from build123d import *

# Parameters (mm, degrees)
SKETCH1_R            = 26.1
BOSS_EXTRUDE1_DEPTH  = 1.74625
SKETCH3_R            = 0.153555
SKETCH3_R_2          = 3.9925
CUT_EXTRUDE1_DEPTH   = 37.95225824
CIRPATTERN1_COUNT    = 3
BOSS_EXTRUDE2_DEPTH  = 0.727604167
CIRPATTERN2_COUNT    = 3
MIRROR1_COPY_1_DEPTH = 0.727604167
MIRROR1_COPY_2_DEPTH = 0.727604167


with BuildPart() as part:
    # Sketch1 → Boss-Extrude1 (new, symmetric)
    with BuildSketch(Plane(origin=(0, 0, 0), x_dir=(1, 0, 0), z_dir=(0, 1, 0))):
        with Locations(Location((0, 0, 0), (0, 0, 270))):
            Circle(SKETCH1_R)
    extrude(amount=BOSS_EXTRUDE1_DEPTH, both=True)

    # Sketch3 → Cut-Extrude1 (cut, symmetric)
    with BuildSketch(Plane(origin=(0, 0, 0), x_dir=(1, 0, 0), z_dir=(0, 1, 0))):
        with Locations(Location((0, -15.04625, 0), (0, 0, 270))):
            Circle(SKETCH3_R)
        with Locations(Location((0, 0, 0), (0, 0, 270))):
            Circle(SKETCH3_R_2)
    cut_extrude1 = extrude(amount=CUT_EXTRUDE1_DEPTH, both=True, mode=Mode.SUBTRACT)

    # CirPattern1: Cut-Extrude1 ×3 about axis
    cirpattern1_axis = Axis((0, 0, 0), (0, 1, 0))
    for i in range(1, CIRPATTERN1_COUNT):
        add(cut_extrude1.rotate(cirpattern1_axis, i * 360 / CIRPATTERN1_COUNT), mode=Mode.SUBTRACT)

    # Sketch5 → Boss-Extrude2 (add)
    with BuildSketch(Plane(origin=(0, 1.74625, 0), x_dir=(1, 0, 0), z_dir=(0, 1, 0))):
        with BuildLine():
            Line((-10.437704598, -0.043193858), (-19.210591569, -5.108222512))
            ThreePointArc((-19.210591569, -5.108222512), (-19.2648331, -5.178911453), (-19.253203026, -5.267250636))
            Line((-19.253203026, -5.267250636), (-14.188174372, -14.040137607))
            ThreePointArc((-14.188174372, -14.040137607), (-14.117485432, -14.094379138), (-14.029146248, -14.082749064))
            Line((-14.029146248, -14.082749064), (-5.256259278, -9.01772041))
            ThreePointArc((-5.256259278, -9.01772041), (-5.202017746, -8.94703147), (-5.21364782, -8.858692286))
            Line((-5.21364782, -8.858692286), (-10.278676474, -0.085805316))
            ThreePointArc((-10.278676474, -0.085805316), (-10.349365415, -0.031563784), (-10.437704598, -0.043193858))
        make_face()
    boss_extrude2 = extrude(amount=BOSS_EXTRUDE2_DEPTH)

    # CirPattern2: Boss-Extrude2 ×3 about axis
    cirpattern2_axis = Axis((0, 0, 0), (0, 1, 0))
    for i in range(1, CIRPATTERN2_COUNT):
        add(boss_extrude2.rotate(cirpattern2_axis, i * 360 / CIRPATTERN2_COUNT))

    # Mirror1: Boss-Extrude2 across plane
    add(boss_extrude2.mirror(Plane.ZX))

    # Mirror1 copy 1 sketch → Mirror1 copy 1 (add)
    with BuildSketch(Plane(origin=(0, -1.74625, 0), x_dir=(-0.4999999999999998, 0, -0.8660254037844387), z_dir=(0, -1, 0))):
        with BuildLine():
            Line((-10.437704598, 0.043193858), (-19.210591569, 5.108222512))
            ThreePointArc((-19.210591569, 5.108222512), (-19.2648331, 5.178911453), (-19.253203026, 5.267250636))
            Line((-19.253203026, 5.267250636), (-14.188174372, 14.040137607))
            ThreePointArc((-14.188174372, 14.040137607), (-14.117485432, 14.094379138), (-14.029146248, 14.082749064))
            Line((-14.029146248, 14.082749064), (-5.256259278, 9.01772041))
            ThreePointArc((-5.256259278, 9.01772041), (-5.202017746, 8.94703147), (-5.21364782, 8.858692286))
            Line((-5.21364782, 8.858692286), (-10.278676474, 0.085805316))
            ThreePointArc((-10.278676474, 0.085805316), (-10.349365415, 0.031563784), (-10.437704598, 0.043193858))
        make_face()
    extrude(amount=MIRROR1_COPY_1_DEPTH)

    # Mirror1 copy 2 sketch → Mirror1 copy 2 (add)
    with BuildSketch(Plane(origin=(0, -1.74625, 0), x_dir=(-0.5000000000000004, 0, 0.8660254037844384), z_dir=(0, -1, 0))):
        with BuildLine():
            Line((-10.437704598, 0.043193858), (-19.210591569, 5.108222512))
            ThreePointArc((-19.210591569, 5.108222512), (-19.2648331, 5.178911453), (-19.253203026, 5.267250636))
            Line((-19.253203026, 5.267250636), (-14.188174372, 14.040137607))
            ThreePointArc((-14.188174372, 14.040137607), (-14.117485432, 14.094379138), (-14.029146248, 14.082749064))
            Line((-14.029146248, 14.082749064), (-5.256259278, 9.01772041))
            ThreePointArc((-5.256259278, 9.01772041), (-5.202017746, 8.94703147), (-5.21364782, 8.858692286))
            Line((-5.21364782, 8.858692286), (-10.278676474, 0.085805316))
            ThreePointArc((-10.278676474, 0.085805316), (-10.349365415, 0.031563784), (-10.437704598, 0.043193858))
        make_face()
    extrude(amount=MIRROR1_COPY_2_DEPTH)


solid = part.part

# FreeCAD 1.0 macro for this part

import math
import FreeCAD as App
import Part
import Sketcher
from FreeCAD import Vector
Q = App.Units.Quantity

doc = App.newDocument("Part")
body = doc.addObject("PartDesign::Body", "Body")

# Sketch on XZ plane
sketch1 = body.newObject("Sketcher::SketchObject", "Sketch")
sketch1.AttachmentSupport = (doc.getObject("XZ_Plane"), [""])
sketch1.MapMode = "FlatFace"
sketch1.addGeometry(Part.Circle(Vector(0, 0, 0), Vector(0, 0, 1), 26), False)
sketch1.addConstraint(Sketcher.Constraint("Coincident", 0, 3, -1, 1))
sketch1.addConstraint(Sketcher.Constraint("Diameter", 0, 52.2))
pad1 = body.newObject("PartDesign::Pad", "Pad")
pad1.Profile = sketch1
pad1.Length = 3.4925
pad1.Midplane = True

# Sketch on XZ plane
sketch2 = body.newObject("Sketcher::SketchObject", "Sketch001")
sketch2.AttachmentSupport = (doc.getObject("XZ_Plane"), [""])
sketch2.MapMode = "FlatFace"
sketch2.addGeometry(Part.Circle(Vector(0, 15.05, 0), Vector(0, 0, 1), 0.15), False)
sketch2.addGeometry(Part.Circle(Vector(0, 0, 0), Vector(0, 0, 1), 3.99), False)
sketch2.addConstraint(Sketcher.Constraint("Coincident", 1, 3, -1, 1))
sketch2.addConstraint(Sketcher.Constraint("PointOnObject", 0, 3, -2))
sketch2.addConstraint(Sketcher.Constraint("Diameter", 1, 7.985))
sketch2.addConstraint(Sketcher.Constraint("Diameter", 0, 0.30711))
sketch2.addConstraint(Sketcher.Constraint("DistanceY", -1, 1, 0, 3, 15.04625))
pocket1 = body.newObject("PartDesign::Pocket", "Pocket")
pocket1.Profile = sketch2
pocket1.Length = 75.904516
pocket1.Midplane = True
doc.recompute()

polarpattern = body.newObject("PartDesign::PolarPattern", "PolarPattern")
polarpattern.Originals = [pocket1]
polarpattern.Axis = (doc.getObject("Y_Axis"), [""])
polarpattern.Angle = 360
polarpattern.Occurrences = 3
body.Tip = polarpattern

# Sketch on XZ plane
sketch3 = body.newObject("Sketcher::SketchObject", "Sketch002")
sketch3.AttachmentSupport = (doc.getObject("XZ_Plane"), [""])
sketch3.MapMode = "FlatFace"
sketch3.AttachmentOffset = App.Placement(Vector(0, 0, -1.74625), App.Rotation())
sketch3.addGeometry(Part.LineSegment(Vector(-10.44, 0.04, 0), Vector(-19.21, 5.11, 0)), False)
sketch3.addGeometry(Part.ArcOfCircle(Part.Circle(Vector(-19.15, 5.21, 0), Vector(0, 0, 1), 0.12), math.radians(150), math.radians(240)), False)
sketch3.addGeometry(Part.LineSegment(Vector(-19.25, 5.27, 0), Vector(-14.19, 14.04, 0)), False)
sketch3.addGeometry(Part.ArcOfCircle(Part.Circle(Vector(-14.09, 13.98, 0), Vector(0, 0, 1), 0.12), math.radians(60), math.radians(150)), False)
sketch3.addGeometry(Part.LineSegment(Vector(-14.03, 14.08, 0), Vector(-5.26, 9.02, 0)), False)
sketch3.addGeometry(Part.ArcOfCircle(Part.Circle(Vector(-5.31, 8.92, 0), Vector(0, 0, 1), 0.12), math.radians(-30), math.radians(60)), False)
sketch3.addGeometry(Part.LineSegment(Vector(-5.21, 8.86, 0), Vector(-10.28, 0.09, 0)), False)
sketch3.addGeometry(Part.ArcOfCircle(Part.Circle(Vector(-10.38, 0.14, 0), Vector(0, 0, 1), 0.12), math.radians(-120), math.radians(-30)), False)
sketch3.addConstraint(Sketcher.Constraint("Tangent", 0, 2, 1, 2))
sketch3.addConstraint(Sketcher.Constraint("Tangent", 1, 1, 2, 1))
sketch3.addConstraint(Sketcher.Constraint("Tangent", 2, 2, 3, 2))
sketch3.addConstraint(Sketcher.Constraint("Tangent", 3, 1, 4, 1))
sketch3.addConstraint(Sketcher.Constraint("Tangent", 4, 2, 5, 2))
sketch3.addConstraint(Sketcher.Constraint("Tangent", 5, 1, 6, 1))
sketch3.addConstraint(Sketcher.Constraint("Tangent", 6, 2, 7, 2))
sketch3.addConstraint(Sketcher.Constraint("Tangent", 7, 1, 0, 1))
sketch3.addConstraint(Sketcher.Constraint("Equal", 1, 3))
sketch3.addConstraint(Sketcher.Constraint("Equal", 3, 5))
sketch3.addConstraint(Sketcher.Constraint("Equal", 5, 7))
sketch3.addConstraint(Sketcher.Constraint("Perpendicular", 0, 2))
sketch3.addConstraint(Sketcher.Constraint("Perpendicular", 2, 4))
sketch3.addConstraint(Sketcher.Constraint("Perpendicular", 4, 6))
sketch3.addConstraint(Sketcher.Constraint("Equal", 0, 2))
sketch3.addConstraint(Sketcher.Constraint("Angle", 0, Q("150 deg")))
sketch3.addConstraint(Sketcher.Constraint("Radius", 1, 0.116417))
sketch3.addConstraint(Sketcher.Constraint("DistanceY", -1, 1, 5, 3, 8.916901))
sketch3.addConstraint(Sketcher.Constraint("DistanceY", 1, 1, 3, 1, 8.815498))
sketch3.addConstraint(Sketcher.Constraint("DistanceX", 0, 2, -1, 1, 19.210592))
pad2 = body.newObject("PartDesign::Pad", "Pad001")
pad2.Profile = sketch3
pad2.Length = 0.727604
pad2.Reversed = True
doc.recompute()

polarpattern2 = body.newObject("PartDesign::PolarPattern", "PolarPattern001")
polarpattern2.Originals = [pad2]
polarpattern2.Axis = (doc.getObject("Y_Axis"), [""])
polarpattern2.Angle = 360
polarpattern2.Occurrences = 3
body.Tip = polarpattern2
doc.recompute()

mirrored = body.newObject("PartDesign::Mirrored", "Mirrored")
mirrored.Originals = [pad2]
mirrored.MirrorPlane = (doc.getObject("XZ_Plane"), [""])
body.Tip = mirrored

# Sketch on XZ plane
sketch4 = body.newObject("Sketcher::SketchObject", "Sketch003")
sketch4.AttachmentSupport = (doc.getObject("XZ_Plane"), [""])
sketch4.MapMode = "FlatFace"
sketch4.AttachmentOffset = App.Placement(Vector(0, 0, 1.74625), App.Rotation())
sketch4.addGeometry(Part.LineSegment(Vector(14.03, 14.08, 0), Vector(5.26, 9.02, 0)), False)
sketch4.addGeometry(Part.ArcOfCircle(Part.Circle(Vector(5.31, 8.92, 0), Vector(0, 0, 1), 0.12), math.radians(120), math.radians(210)), False)
sketch4.addGeometry(Part.LineSegment(Vector(5.21, 8.86, 0), Vector(10.28, 0.09, 0)), False)
sketch4.addGeometry(Part.ArcOfCircle(Part.Circle(Vector(10.38, 0.14, 0), Vector(0, 0, 1), 0.12), math.radians(-150), math.radians(-60)), False)
sketch4.addGeometry(Part.LineSegment(Vector(10.44, 0.04, 0), Vector(19.21, 5.11, 0)), False)
sketch4.addGeometry(Part.ArcOfCircle(Part.Circle(Vector(19.15, 5.21, 0), Vector(0, 0, 1), 0.12), math.radians(-60), math.radians(30)), False)
sketch4.addGeometry(Part.LineSegment(Vector(19.25, 5.27, 0), Vector(14.19, 14.04, 0)), False)
sketch4.addGeometry(Part.ArcOfCircle(Part.Circle(Vector(14.09, 13.98, 0), Vector(0, 0, 1), 0.12), math.radians(30), math.radians(120)), False)
sketch4.addConstraint(Sketcher.Constraint("Tangent", 0, 2, 1, 1))
sketch4.addConstraint(Sketcher.Constraint("Tangent", 1, 2, 2, 1))
sketch4.addConstraint(Sketcher.Constraint("Tangent", 2, 2, 3, 1))
sketch4.addConstraint(Sketcher.Constraint("Tangent", 3, 2, 4, 1))
sketch4.addConstraint(Sketcher.Constraint("Tangent", 4, 2, 5, 1))
sketch4.addConstraint(Sketcher.Constraint("Tangent", 5, 2, 6, 1))
sketch4.addConstraint(Sketcher.Constraint("Tangent", 6, 2, 7, 1))
sketch4.addConstraint(Sketcher.Constraint("Tangent", 7, 2, 0, 1))
sketch4.addConstraint(Sketcher.Constraint("Equal", 1, 3))
sketch4.addConstraint(Sketcher.Constraint("Equal", 3, 5))
sketch4.addConstraint(Sketcher.Constraint("Equal", 5, 7))
sketch4.addConstraint(Sketcher.Constraint("Perpendicular", 0, 2))
sketch4.addConstraint(Sketcher.Constraint("Perpendicular", 2, 4))
sketch4.addConstraint(Sketcher.Constraint("Perpendicular", 4, 6))
sketch4.addConstraint(Sketcher.Constraint("Equal", 0, 2))
sketch4.addConstraint(Sketcher.Constraint("Angle", 0, Q("-150 deg")))
sketch4.addConstraint(Sketcher.Constraint("Radius", 1, 0.116417))
sketch4.addConstraint(Sketcher.Constraint("DistanceY", -1, 1, 1, 3, 8.916901))
sketch4.addConstraint(Sketcher.Constraint("DistanceY", 3, 2, 1, 2, 8.815498))
sketch4.addConstraint(Sketcher.Constraint("DistanceX", -1, 1, 0, 2, 5.256259))
pad3 = body.newObject("PartDesign::Pad", "Pad002")
pad3.Profile = sketch4
pad3.Length = 0.727604

# Sketch on XZ plane
sketch5 = body.newObject("Sketcher::SketchObject", "Sketch004")
sketch5.AttachmentSupport = (doc.getObject("XZ_Plane"), [""])
sketch5.MapMode = "FlatFace"
sketch5.AttachmentOffset = App.Placement(Vector(0, 0, 1.74625), App.Rotation())
sketch5.addGeometry(Part.LineSegment(Vector(5.18, -19.19, 0), Vector(5.18, -9.06, 0)), False)
sketch5.addGeometry(Part.ArcOfCircle(Part.Circle(Vector(5.07, -9.06, 0), Vector(0, 0, 1), 0.12), math.radians(0), math.radians(90)), False)
sketch5.addGeometry(Part.LineSegment(Vector(5.07, -8.94, 0), Vector(-5.07, -8.94, 0)), False)
sketch5.addGeometry(Part.ArcOfCircle(Part.Circle(Vector(-5.07, -9.06, 0), Vector(0, 0, 1), 0.12), math.radians(90), math.radians(180)), False)
sketch5.addGeometry(Part.LineSegment(Vector(-5.18, -9.06, 0), Vector(-5.18, -19.19, 0)), False)
sketch5.addGeometry(Part.ArcOfCircle(Part.Circle(Vector(-5.07, -19.19, 0), Vector(0, 0, 1), 0.12), math.radians(180), math.radians(270)), False)
sketch5.addGeometry(Part.LineSegment(Vector(-5.07, -19.31, 0), Vector(5.07, -19.31, 0)), False)
sketch5.addGeometry(Part.ArcOfCircle(Part.Circle(Vector(5.07, -19.19, 0), Vector(0, 0, 1), 0.12), math.radians(-90), math.radians(0)), False)
sketch5.addConstraint(Sketcher.Constraint("Tangent", 0, 2, 1, 1))
sketch5.addConstraint(Sketcher.Constraint("Tangent", 1, 2, 2, 1))
sketch5.addConstraint(Sketcher.Constraint("Tangent", 2, 2, 3, 1))
sketch5.addConstraint(Sketcher.Constraint("Tangent", 3, 2, 4, 1))
sketch5.addConstraint(Sketcher.Constraint("Tangent", 4, 2, 5, 1))
sketch5.addConstraint(Sketcher.Constraint("Tangent", 5, 2, 6, 1))
sketch5.addConstraint(Sketcher.Constraint("Tangent", 6, 2, 7, 1))
sketch5.addConstraint(Sketcher.Constraint("Tangent", 7, 2, 0, 1))
sketch5.addConstraint(Sketcher.Constraint("Vertical", 0))
sketch5.addConstraint(Sketcher.Constraint("Horizontal", 2))
sketch5.addConstraint(Sketcher.Constraint("Vertical", 4))
sketch5.addConstraint(Sketcher.Constraint("Horizontal", 6))
sketch5.addConstraint(Sketcher.Constraint("Equal", 1, 3))
sketch5.addConstraint(Sketcher.Constraint("Equal", 3, 5))
sketch5.addConstraint(Sketcher.Constraint("Equal", 5, 7))
sketch5.addConstraint(Sketcher.Constraint("Equal", 6, 0))
sketch5.addConstraint(Sketcher.Constraint("Radius", 1, 0.116417))
sketch5.addConstraint(Sketcher.Constraint("DistanceX", 2, 2, 2, 1, 10.130057))
sketch5.addConstraint(Sketcher.Constraint("DistanceX", -1, 1, 1, 3, 5.065029))
sketch5.addConstraint(Sketcher.Constraint("DistanceY", 5, 3, -1, 1, 19.190972))
pad4 = body.newObject("PartDesign::Pad", "Pad003")
pad4.Profile = sketch5
pad4.Length = 0.727604

doc.recompute()
